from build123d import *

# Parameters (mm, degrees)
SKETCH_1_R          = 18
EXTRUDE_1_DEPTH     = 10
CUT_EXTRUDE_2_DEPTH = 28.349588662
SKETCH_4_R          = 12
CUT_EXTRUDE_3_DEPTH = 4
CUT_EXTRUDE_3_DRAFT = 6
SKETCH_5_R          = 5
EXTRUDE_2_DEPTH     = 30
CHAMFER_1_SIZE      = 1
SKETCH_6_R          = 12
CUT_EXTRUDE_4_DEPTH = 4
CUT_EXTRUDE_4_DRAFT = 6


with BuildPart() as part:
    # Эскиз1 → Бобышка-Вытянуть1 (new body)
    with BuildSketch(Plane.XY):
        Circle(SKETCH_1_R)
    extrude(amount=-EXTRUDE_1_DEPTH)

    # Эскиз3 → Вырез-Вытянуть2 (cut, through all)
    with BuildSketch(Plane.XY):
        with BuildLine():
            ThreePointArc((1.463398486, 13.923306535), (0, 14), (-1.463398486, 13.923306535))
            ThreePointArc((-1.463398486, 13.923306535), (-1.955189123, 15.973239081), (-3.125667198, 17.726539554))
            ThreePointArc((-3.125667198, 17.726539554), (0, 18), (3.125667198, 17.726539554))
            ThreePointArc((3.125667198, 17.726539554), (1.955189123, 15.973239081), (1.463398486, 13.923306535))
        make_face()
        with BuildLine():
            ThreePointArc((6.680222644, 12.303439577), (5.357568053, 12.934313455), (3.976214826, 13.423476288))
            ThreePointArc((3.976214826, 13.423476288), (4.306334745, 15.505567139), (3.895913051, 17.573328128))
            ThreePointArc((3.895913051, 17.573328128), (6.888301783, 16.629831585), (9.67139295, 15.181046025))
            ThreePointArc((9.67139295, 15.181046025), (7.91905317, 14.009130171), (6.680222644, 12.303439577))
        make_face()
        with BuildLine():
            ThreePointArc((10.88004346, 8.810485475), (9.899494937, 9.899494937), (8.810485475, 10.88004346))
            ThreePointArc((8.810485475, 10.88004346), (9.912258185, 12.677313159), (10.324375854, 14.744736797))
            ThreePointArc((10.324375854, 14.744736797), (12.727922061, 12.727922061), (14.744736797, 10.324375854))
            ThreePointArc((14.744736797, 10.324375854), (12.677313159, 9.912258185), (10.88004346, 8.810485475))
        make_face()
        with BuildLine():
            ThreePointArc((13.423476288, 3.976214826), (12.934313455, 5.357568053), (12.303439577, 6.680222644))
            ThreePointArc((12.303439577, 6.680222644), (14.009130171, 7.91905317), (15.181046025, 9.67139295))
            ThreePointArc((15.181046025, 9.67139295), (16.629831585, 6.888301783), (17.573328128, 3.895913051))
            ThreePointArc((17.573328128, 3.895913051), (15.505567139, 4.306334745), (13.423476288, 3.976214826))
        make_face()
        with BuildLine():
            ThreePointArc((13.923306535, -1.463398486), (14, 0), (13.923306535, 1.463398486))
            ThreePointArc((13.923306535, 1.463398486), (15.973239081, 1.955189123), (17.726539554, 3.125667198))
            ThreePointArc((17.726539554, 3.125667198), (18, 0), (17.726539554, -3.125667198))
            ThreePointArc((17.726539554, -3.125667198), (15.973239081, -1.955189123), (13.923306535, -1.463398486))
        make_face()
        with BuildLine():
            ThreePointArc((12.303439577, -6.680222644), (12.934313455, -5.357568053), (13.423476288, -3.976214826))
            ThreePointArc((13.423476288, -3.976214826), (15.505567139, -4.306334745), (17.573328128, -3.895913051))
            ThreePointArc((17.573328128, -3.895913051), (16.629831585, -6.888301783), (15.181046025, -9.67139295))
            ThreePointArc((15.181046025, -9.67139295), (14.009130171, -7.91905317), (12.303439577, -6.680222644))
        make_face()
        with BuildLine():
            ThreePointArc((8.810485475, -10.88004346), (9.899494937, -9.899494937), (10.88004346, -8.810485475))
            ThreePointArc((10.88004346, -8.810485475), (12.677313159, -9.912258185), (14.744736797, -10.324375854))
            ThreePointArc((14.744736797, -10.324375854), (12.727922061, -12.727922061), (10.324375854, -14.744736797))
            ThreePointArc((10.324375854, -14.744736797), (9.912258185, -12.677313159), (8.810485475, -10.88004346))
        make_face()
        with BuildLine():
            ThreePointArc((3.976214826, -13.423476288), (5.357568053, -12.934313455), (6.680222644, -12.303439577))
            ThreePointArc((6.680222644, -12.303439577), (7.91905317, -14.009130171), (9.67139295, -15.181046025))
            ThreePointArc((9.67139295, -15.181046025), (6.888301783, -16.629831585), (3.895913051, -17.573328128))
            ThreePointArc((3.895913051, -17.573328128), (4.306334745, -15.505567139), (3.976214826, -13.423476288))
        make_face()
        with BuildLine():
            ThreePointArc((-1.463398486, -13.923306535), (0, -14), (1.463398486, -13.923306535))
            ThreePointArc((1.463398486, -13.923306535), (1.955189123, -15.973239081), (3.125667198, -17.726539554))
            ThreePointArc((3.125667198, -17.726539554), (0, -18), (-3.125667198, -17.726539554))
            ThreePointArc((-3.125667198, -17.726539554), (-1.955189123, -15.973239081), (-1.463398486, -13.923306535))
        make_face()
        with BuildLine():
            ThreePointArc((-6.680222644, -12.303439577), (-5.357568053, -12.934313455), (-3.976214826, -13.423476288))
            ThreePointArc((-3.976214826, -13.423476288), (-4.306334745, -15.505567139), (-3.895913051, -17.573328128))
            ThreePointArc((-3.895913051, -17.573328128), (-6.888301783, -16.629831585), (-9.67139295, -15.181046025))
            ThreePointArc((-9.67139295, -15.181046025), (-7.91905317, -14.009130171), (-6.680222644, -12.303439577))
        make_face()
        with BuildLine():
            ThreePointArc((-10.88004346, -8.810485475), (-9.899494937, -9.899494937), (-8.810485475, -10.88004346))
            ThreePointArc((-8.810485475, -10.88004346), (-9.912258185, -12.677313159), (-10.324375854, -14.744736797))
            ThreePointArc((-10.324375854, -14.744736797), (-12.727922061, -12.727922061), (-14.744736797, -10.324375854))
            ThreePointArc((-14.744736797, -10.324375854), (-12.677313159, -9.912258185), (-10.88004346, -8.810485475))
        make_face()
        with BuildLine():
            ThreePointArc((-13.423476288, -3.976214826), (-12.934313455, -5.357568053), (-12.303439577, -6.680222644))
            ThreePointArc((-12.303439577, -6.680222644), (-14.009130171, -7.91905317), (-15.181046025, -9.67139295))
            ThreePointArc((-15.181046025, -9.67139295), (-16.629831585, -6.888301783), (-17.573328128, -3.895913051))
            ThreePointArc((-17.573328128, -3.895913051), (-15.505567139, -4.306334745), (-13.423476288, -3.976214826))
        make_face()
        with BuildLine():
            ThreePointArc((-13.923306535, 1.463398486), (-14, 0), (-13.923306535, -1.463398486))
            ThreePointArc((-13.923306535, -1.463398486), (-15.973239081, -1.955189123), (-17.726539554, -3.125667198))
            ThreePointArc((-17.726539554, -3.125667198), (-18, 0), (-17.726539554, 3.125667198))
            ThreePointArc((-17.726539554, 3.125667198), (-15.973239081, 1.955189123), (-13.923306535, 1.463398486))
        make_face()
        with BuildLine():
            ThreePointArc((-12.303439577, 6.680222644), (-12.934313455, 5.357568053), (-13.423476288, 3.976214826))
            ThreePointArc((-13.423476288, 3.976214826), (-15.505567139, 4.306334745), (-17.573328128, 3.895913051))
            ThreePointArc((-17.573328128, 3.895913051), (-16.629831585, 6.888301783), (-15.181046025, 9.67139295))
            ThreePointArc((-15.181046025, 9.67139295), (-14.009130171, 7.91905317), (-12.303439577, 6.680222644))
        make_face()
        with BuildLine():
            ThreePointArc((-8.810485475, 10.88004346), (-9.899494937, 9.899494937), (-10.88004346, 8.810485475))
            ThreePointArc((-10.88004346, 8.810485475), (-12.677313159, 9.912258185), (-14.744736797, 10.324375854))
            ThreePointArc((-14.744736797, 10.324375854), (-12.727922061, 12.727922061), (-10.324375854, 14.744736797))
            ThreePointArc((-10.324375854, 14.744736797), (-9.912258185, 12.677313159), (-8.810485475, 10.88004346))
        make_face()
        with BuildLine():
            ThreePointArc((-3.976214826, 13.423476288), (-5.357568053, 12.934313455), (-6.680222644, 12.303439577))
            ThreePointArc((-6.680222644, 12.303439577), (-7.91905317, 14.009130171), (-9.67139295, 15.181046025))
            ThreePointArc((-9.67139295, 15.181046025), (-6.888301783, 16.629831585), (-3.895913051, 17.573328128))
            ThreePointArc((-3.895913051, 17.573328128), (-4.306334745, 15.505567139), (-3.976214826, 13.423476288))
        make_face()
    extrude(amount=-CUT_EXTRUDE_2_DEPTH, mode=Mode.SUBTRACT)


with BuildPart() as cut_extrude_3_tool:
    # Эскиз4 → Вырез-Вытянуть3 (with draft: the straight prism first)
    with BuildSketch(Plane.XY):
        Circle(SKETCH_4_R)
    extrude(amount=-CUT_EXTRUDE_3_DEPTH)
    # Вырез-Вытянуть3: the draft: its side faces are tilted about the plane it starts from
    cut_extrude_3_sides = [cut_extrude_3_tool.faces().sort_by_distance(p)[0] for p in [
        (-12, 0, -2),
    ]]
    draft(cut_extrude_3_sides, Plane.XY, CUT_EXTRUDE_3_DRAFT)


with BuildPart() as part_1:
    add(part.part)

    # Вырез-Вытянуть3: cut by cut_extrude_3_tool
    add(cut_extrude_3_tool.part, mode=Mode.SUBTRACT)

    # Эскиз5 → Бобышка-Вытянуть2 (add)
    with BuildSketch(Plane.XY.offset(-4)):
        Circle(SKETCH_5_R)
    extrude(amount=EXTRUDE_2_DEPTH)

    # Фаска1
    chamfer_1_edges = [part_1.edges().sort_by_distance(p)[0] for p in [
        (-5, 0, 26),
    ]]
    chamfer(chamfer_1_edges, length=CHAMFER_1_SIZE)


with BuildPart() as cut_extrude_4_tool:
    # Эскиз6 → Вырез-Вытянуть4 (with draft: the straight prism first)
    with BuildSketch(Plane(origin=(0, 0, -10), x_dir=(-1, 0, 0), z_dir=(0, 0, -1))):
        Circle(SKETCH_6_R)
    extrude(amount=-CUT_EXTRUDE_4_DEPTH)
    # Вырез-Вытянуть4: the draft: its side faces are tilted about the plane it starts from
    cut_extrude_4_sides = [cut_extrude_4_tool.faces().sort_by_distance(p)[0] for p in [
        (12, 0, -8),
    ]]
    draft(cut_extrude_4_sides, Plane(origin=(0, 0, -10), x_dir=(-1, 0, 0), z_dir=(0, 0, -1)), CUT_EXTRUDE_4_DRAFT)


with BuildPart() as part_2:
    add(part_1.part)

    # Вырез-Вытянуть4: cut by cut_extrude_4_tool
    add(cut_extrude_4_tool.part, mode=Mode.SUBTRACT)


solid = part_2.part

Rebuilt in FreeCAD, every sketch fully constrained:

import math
import FreeCAD as App
import Part
import Sketcher

V = App.Vector
Q = App.Units.Quantity


def edges_at(feature, points):
    """Names of the edges that pass closest to the given points."""
    edges = feature.Shape.Edges
    near = lambda p: min(range(len(edges)), key=lambda i: edges[i].distToShape(Part.Vertex(*p))[0])
    return sorted({f"Edge{near(p) + 1}" for p in points})


def faces_at(feature, points):
    """Names of the faces that lie closest to the given points."""
    faces = feature.Shape.Faces
    near = lambda p: min(range(len(faces)), key=lambda i: faces[i].distToShape(Part.Vertex(*p))[0])
    return sorted({f"Face{near(p) + 1}" for p in points})

doc = App.newDocument("Part")
body = doc.addObject("PartDesign::Body", "Body")

sketch1 = body.newObject("Sketcher::SketchObject", "Sketch")
sketch1.AttachmentSupport = (doc.getObject("XY_Plane"), [""])
sketch1.MapMode = "FlatFace"
sketch1.addGeometry(Part.Circle(V(0, 0, 0), V(0, 0, 1), 18), False)
sketch1.addConstraint([
    Sketcher.Constraint("Coincident", 0, 3, -1, 1),
    Sketcher.Constraint("Diameter", 0, Q("36 mm")),
])
pad1 = body.newObject("PartDesign::Pad", "Pad")
pad1.Profile = sketch1
pad1.Length = 10
pad1.Reversed = True

sketch2 = body.newObject("Sketcher::SketchObject", "Sketch001")
sketch2.AttachmentSupport = (doc.getObject("XY_Plane"), [""])
sketch2.MapMode = "FlatFace"
sketch2.addGeometry([
    Part.ArcOfCircle(Part.Circle(V(0, 0, 0), V(0, 0, 1), 14), math.radians(84), math.radians(96)),
    Part.ArcOfCircle(Part.Circle(V(7.5, 13.6, 0), V(0, 0, 1), 6), math.radians(136), math.radians(177)),
    Part.ArcOfCircle(Part.Circle(V(0, 0, 0), V(0, 0, 1), 18), math.radians(80), math.radians(100)),
    Part.ArcOfCircle(Part.Circle(V(-7.5, 13.6, 0), V(0, 0, 1), 6), math.radians(3), math.radians(44)),
    Part.ArcOfCircle(Part.Circle(V(0, 0, 0), V(0, 0, 1), 14), math.radians(61.5), math.radians(73.5)),
    Part.ArcOfCircle(Part.Circle(V(12.1, 9.7, 0), V(0, 0, 1), 6), math.radians(114), math.radians(154)),
    Part.ArcOfCircle(Part.Circle(V(0, 0, 0), V(0, 0, 1), 18), math.radians(57.5), math.radians(77.5)),
    Part.ArcOfCircle(Part.Circle(V(-1.7, 15.4, 0), V(0, 0, 1), 6), math.radians(-19), math.radians(21)),
    Part.ArcOfCircle(Part.Circle(V(0, 0, 0), V(0, 0, 1), 14), math.radians(39), math.radians(51)),
    Part.ArcOfCircle(Part.Circle(V(14.9, 4.3, 0), V(0, 0, 1), 6), math.radians(91), math.radians(132)),
    Part.ArcOfCircle(Part.Circle(V(0, 0, 0), V(0, 0, 1), 18), math.radians(35), math.radians(55)),
    Part.ArcOfCircle(Part.Circle(V(4.3, 14.9, 0), V(0, 0, 1), 6), math.radians(-42), math.radians(-1)),
    Part.ArcOfCircle(Part.Circle(V(0, 0, 0), V(0, 0, 1), 14), math.radians(16.5), math.radians(28.5)),
    Part.ArcOfCircle(Part.Circle(V(15.4, -1.7, 0), V(0, 0, 1), 6), math.radians(69), math.radians(109)),
    Part.ArcOfCircle(Part.Circle(V(0, 0, 0), V(0, 0, 1), 18), math.radians(12.5), math.radians(32.5)),
    Part.ArcOfCircle(Part.Circle(V(9.7, 12.1, 0), V(0, 0, 1), 6), math.radians(-64), math.radians(-24)),
    Part.ArcOfCircle(Part.Circle(V(0, 0, 0), V(0, 0, 1), 14), math.radians(-6), math.radians(6)),
    Part.ArcOfCircle(Part.Circle(V(13.6, -7.5, 0), V(0, 0, 1), 6), math.radians(46), math.radians(87)),
    Part.ArcOfCircle(Part.Circle(V(0, 0, 0), V(0, 0, 1), 18), math.radians(-10), math.radians(10)),
    Part.ArcOfCircle(Part.Circle(V(13.6, 7.5, 0), V(0, 0, 1), 6), math.radians(-87), math.radians(-46)),
    Part.ArcOfCircle(Part.Circle(V(0, 0, 0), V(0, 0, 1), 14), math.radians(-28.5), math.radians(-16.5)),
    Part.ArcOfCircle(Part.Circle(V(9.7, -12.1, 0), V(0, 0, 1), 6), math.radians(24), math.radians(64)),
    Part.ArcOfCircle(Part.Circle(V(0, 0, 0), V(0, 0, 1), 18), math.radians(-32.5), math.radians(-12.5)),
    Part.ArcOfCircle(Part.Circle(V(15.4, 1.7, 0), V(0, 0, 1), 6), math.radians(-109), math.radians(-69)),
    Part.ArcOfCircle(Part.Circle(V(0, 0, 0), V(0, 0, 1), 14), math.radians(-51), math.radians(-39)),
    Part.ArcOfCircle(Part.Circle(V(4.3, -14.9, 0), V(0, 0, 1), 6), math.radians(1), math.radians(42)),
    Part.ArcOfCircle(Part.Circle(V(0, 0, 0), V(0, 0, 1), 18), math.radians(-55), math.radians(-35)),
    Part.ArcOfCircle(Part.Circle(V(14.9, -4.3, 0), V(0, 0, 1), 6), math.radians(-132), math.radians(-91)),
    Part.ArcOfCircle(Part.Circle(V(0, 0, 0), V(0, 0, 1), 14), math.radians(-73.5), math.radians(-61.5)),
    Part.ArcOfCircle(Part.Circle(V(-1.7, -15.4, 0), V(0, 0, 1), 6), math.radians(-21), math.radians(19)),
    Part.ArcOfCircle(Part.Circle(V(0, 0, 0), V(0, 0, 1), 18), math.radians(-77.5), math.radians(-57.5)),
    Part.ArcOfCircle(Part.Circle(V(12.1, -9.7, 0), V(0, 0, 1), 6), math.radians(-154), math.radians(-114)),
    Part.ArcOfCircle(Part.Circle(V(0, 0, 0), V(0, 0, 1), 14), math.radians(-96), math.radians(-84)),
    Part.ArcOfCircle(Part.Circle(V(-7.5, -13.6, 0), V(0, 0, 1), 6), math.radians(-44), math.radians(-3)),
    Part.ArcOfCircle(Part.Circle(V(0, 0, 0), V(0, 0, 1), 18), math.radians(-100), math.radians(-80)),
    Part.ArcOfCircle(Part.Circle(V(7.5, -13.6, 0), V(0, 0, 1), 6), math.radians(-177), math.radians(-136)),
    Part.ArcOfCircle(Part.Circle(V(0, 0, 0), V(0, 0, 1), 14), math.radians(-118.5), math.radians(-106.5)),
    Part.ArcOfCircle(Part.Circle(V(-12.1, -9.7, 0), V(0, 0, 1), 6), math.radians(-66), math.radians(-26)),
    Part.ArcOfCircle(Part.Circle(V(0, 0, 0), V(0, 0, 1), 18), math.radians(-122.5), math.radians(-102.5)),
    Part.ArcOfCircle(Part.Circle(V(1.7, -15.4, 0), V(0, 0, 1), 6), math.radians(161), math.radians(201)),
    Part.ArcOfCircle(Part.Circle(V(0, 0, 0), V(0, 0, 1), 14), math.radians(-141), math.radians(-129)),
    Part.ArcOfCircle(Part.Circle(V(-14.9, -4.3, 0), V(0, 0, 1), 6), math.radians(-89), math.radians(-48)),
    Part.ArcOfCircle(Part.Circle(V(0, 0, 0), V(0, 0, 1), 18), math.radians(-145), math.radians(-125)),
    Part.ArcOfCircle(Part.Circle(V(-4.3, -14.9, 0), V(0, 0, 1), 6), math.radians(138), math.radians(179)),
    Part.ArcOfCircle(Part.Circle(V(0, 0, 0), V(0, 0, 1), 14), math.radians(-163.5), math.radians(-151.5)),
    Part.ArcOfCircle(Part.Circle(V(-15.4, 1.7, 0), V(0, 0, 1), 6), math.radians(-111), math.radians(-71)),
    Part.ArcOfCircle(Part.Circle(V(0, 0, 0), V(0, 0, 1), 18), math.radians(-167.5), math.radians(-147.5)),
    Part.ArcOfCircle(Part.Circle(V(-9.7, -12.1, 0), V(0, 0, 1), 6), math.radians(116), math.radians(156)),
    Part.ArcOfCircle(Part.Circle(V(0, 0, 0), V(0, 0, 1), 14), math.radians(174), math.radians(186)),
    Part.ArcOfCircle(Part.Circle(V(-13.6, 7.5, 0), V(0, 0, 1), 6), math.radians(-134), math.radians(-93)),
    Part.ArcOfCircle(Part.Circle(V(0, 0, 0), V(0, 0, 1), 18), math.radians(170), math.radians(190)),
    Part.ArcOfCircle(Part.Circle(V(-13.6, -7.5, 0), V(0, 0, 1), 6), math.radians(93), math.radians(134)),
    Part.ArcOfCircle(Part.Circle(V(0, 0, 0), V(0, 0, 1), 14), math.radians(151.5), math.radians(163.5)),
    Part.ArcOfCircle(Part.Circle(V(-9.7, 12.1, 0), V(0, 0, 1), 6), math.radians(-156), math.radians(-116)),
    Part.ArcOfCircle(Part.Circle(V(0, 0, 0), V(0, 0, 1), 18), math.radians(147.5), math.radians(167.5)),
    Part.ArcOfCircle(Part.Circle(V(-15.4, -1.7, 0), V(0, 0, 1), 6), math.radians(71), math.radians(111)),
    Part.ArcOfCircle(Part.Circle(V(0, 0, 0), V(0, 0, 1), 14), math.radians(129), math.radians(141)),
    Part.ArcOfCircle(Part.Circle(V(-4.3, 14.9, 0), V(0, 0, 1), 6), math.radians(-179), math.radians(-138)),
    Part.ArcOfCircle(Part.Circle(V(0, 0, 0), V(0, 0, 1), 18), math.radians(125), math.radians(145)),
    Part.ArcOfCircle(Part.Circle(V(-14.9, 4.3, 0), V(0, 0, 1), 6), math.radians(48), math.radians(89)),
    Part.ArcOfCircle(Part.Circle(V(0, 0, 0), V(0, 0, 1), 14), math.radians(106.5), math.radians(118.5)),
    Part.ArcOfCircle(Part.Circle(V(1.7, 15.4, 0), V(0, 0, 1), 6), math.radians(159), math.radians(199)),
    Part.ArcOfCircle(Part.Circle(V(0, 0, 0), V(0, 0, 1), 18), math.radians(102.5), math.radians(122.5)),
    Part.ArcOfCircle(Part.Circle(V(-12.1, 9.7, 0), V(0, 0, 1), 6), math.radians(26), math.radians(66)),
], False)
sketch2.addConstraint([
    Sketcher.Constraint("Coincident", 0, 1, 1, 2),
    Sketcher.Constraint("Coincident", 1, 1, 2, 1),
    Sketcher.Constraint("Coincident", 2, 2, 3, 2),
    Sketcher.Constraint("Coincident", 3, 1, 0, 2),
    Sketcher.Constraint("Coincident", 4, 1, 5, 2),
    Sketcher.Constraint("Coincident", 5, 1, 6, 1),
    Sketcher.Constraint("Coincident", 6, 2, 7, 2),
    Sketcher.Constraint("Coincident", 7, 1, 4, 2),
    Sketcher.Constraint("Coincident", 8, 1, 9, 2),
    Sketcher.Constraint("Coincident", 9, 1, 10, 1),
    Sketcher.Constraint("Coincident", 10, 2, 11, 2),
    Sketcher.Constraint("Coincident", 11, 1, 8, 2),
    Sketcher.Constraint("Coincident", 12, 1, 13, 2),
    Sketcher.Constraint("Coincident", 13, 1, 14, 1),
    Sketcher.Constraint("Coincident", 14, 2, 15, 2),
    Sketcher.Constraint("Coincident", 15, 1, 12, 2),
    Sketcher.Constraint("Coincident", 16, 1, 17, 2),
    Sketcher.Constraint("Coincident", 17, 1, 18, 1),
    Sketcher.Constraint("Coincident", 18, 2, 19, 2),
    Sketcher.Constraint("Coincident", 19, 1, 16, 2),
    Sketcher.Constraint("Coincident", 20, 1, 21, 2),
    Sketcher.Constraint("Coincident", 21, 1, 22, 1),
    Sketcher.Constraint("Coincident", 22, 2, 23, 2),
    Sketcher.Constraint("Coincident", 23, 1, 20, 2),
    Sketcher.Constraint("Coincident", 24, 1, 25, 2),
    Sketcher.Constraint("Coincident", 25, 1, 26, 1),
    Sketcher.Constraint("Coincident", 26, 2, 27, 2),
    Sketcher.Constraint("Coincident", 27, 1, 24, 2),
    Sketcher.Constraint("Coincident", 28, 1, 29, 2),
    Sketcher.Constraint("Coincident", 29, 1, 30, 1),
    Sketcher.Constraint("Coincident", 30, 2, 31, 2),
    Sketcher.Constraint("Coincident", 31, 1, 28, 2),
    Sketcher.Constraint("Coincident", 32, 1, 33, 2),
    Sketcher.Constraint("Coincident", 33, 1, 34, 1),
    Sketcher.Constraint("Coincident", 34, 2, 35, 2),
    Sketcher.Constraint("Coincident", 35, 1, 32, 2),
    Sketcher.Constraint("Coincident", 36, 1, 37, 2),
    Sketcher.Constraint("Coincident", 37, 1, 38, 1),
    Sketcher.Constraint("Coincident", 38, 2, 39, 2),
    Sketcher.Constraint("Coincident", 39, 1, 36, 2),
    Sketcher.Constraint("Coincident", 40, 1, 41, 2),
    Sketcher.Constraint("Coincident", 41, 1, 42, 1),
    Sketcher.Constraint("Coincident", 42, 2, 43, 2),
    Sketcher.Constraint("Coincident", 43, 1, 40, 2),
    Sketcher.Constraint("Coincident", 44, 1, 45, 2),
    Sketcher.Constraint("Coincident", 45, 1, 46, 1),
    Sketcher.Constraint("Coincident", 46, 2, 47, 2),
    Sketcher.Constraint("Coincident", 47, 1, 44, 2),
    Sketcher.Constraint("Coincident", 48, 1, 49, 2),
    Sketcher.Constraint("Coincident", 49, 1, 50, 1),
    Sketcher.Constraint("Coincident", 50, 2, 51, 2),
    Sketcher.Constraint("Coincident", 51, 1, 48, 2),
    Sketcher.Constraint("Coincident", 52, 1, 53, 2),
    Sketcher.Constraint("Coincident", 53, 1, 54, 1),
    Sketcher.Constraint("Coincident", 54, 2, 55, 2),
    Sketcher.Constraint("Coincident", 55, 1, 52, 2),
    Sketcher.Constraint("Coincident", 56, 1, 57, 2),
    Sketcher.Constraint("Coincident", 57, 1, 58, 1),
    Sketcher.Constraint("Coincident", 58, 2, 59, 2),
    Sketcher.Constraint("Coincident", 59, 1, 56, 2),
    Sketcher.Constraint("Coincident", 60, 1, 61, 2),
    Sketcher.Constraint("Coincident", 61, 1, 62, 1),
    Sketcher.Constraint("Coincident", 62, 2, 63, 2),
    Sketcher.Constraint("Coincident", 63, 1, 60, 2),
    Sketcher.Constraint("Coincident", 0, 3, -1, 1),
    Sketcher.Constraint("Coincident", 2, 3, -1, 1),
    Sketcher.Constraint("Coincident", 4, 3, -1, 1),
    Sketcher.Constraint("Coincident", 6, 3, -1, 1),
    Sketcher.Constraint("Coincident", 8, 3, -1, 1),
    Sketcher.Constraint("Coincident", 10, 3, -1, 1),
    Sketcher.Constraint("Coincident", 12, 3, -1, 1),
    Sketcher.Constraint("Coincident", 14, 3, -1, 1),
    Sketcher.Constraint("Coincident", 16, 3, -1, 1),
    Sketcher.Constraint("Coincident", 18, 3, -1, 1),
    Sketcher.Constraint("Coincident", 20, 3, -1, 1),
    Sketcher.Constraint("Coincident", 22, 3, -1, 1),
    Sketcher.Constraint("Coincident", 24, 3, -1, 1),
    Sketcher.Constraint("Coincident", 26, 3, -1, 1),
    Sketcher.Constraint("Coincident", 28, 3, -1, 1),
    Sketcher.Constraint("Coincident", 30, 3, -1, 1),
    Sketcher.Constraint("Coincident", 32, 3, -1, 1),
    Sketcher.Constraint("Coincident", 34, 3, -1, 1),
    Sketcher.Constraint("Coincident", 36, 3, -1, 1),
    Sketcher.Constraint("Coincident", 38, 3, -1, 1),
    Sketcher.Constraint("Coincident", 40, 3, -1, 1),
    Sketcher.Constraint("Coincident", 42, 3, -1, 1),
    Sketcher.Constraint("Coincident", 44, 3, -1, 1),
    Sketcher.Constraint("Coincident", 46, 3, -1, 1),
    Sketcher.Constraint("Coincident", 48, 3, -1, 1),
    Sketcher.Constraint("Coincident", 50, 3, -1, 1),
    Sketcher.Constraint("Coincident", 52, 3, -1, 1),
    Sketcher.Constraint("Coincident", 54, 3, -1, 1),
    Sketcher.Constraint("Coincident", 56, 3, -1, 1),
    Sketcher.Constraint("Coincident", 58, 3, -1, 1),
    Sketcher.Constraint("Coincident", 60, 3, -1, 1),
    Sketcher.Constraint("Coincident", 62, 3, -1, 1),
    Sketcher.Constraint("Equal", 1, 3),
    Sketcher.Constraint("Equal", 0, 4),
    Sketcher.Constraint("Equal", 3, 5),
    Sketcher.Constraint("Equal", 2, 6),
    Sketcher.Constraint("Equal", 5, 7),
    Sketcher.Constraint("Equal", 4, 8),
    Sketcher.Constraint("Equal", 7, 9),
    Sketcher.Constraint("Equal", 6, 10),
    Sketcher.Constraint("Equal", 9, 11),
    Sketcher.Constraint("Equal", 8, 12),
    Sketcher.Constraint("Equal", 11, 13),
    Sketcher.Constraint("Equal", 10, 14),
    Sketcher.Constraint("Equal", 13, 15),
    Sketcher.Constraint("Equal", 12, 16),
    Sketcher.Constraint("Equal", 15, 17),
    Sketcher.Constraint("Equal", 14, 18),
    Sketcher.Constraint("Equal", 17, 19),
    Sketcher.Constraint("Equal", 16, 20),
    Sketcher.Constraint("Equal", 19, 21),
    Sketcher.Constraint("Equal", 18, 22),
    Sketcher.Constraint("Equal", 21, 23),
    Sketcher.Constraint("Equal", 20, 24),
    Sketcher.Constraint("Equal", 23, 25),
    Sketcher.Constraint("Equal", 22, 26),
    Sketcher.Constraint("Equal", 25, 27),
    Sketcher.Constraint("Equal", 24, 28),
    Sketcher.Constraint("Equal", 27, 29),
    Sketcher.Constraint("Equal", 26, 30),
    Sketcher.Constraint("Equal", 29, 31),
    Sketcher.Constraint("Equal", 28, 32),
    Sketcher.Constraint("Equal", 31, 33),
    Sketcher.Constraint("Equal", 30, 34),
    Sketcher.Constraint("Equal", 33, 35),
    Sketcher.Constraint("Equal", 32, 36),
    Sketcher.Constraint("Equal", 35, 37),
    Sketcher.Constraint("Equal", 34, 38),
    Sketcher.Constraint("Equal", 37, 39),
    Sketcher.Constraint("Equal", 36, 40),
    Sketcher.Constraint("Equal", 39, 41),
    Sketcher.Constraint("Equal", 38, 42),
    Sketcher.Constraint("Equal", 41, 43),
    Sketcher.Constraint("Equal", 40, 44),
    Sketcher.Constraint("Equal", 43, 45),
    Sketcher.Constraint("Equal", 42, 46),
    Sketcher.Constraint("Equal", 45, 47),
    Sketcher.Constraint("Equal", 44, 48),
    Sketcher.Constraint("Equal", 47, 49),
    Sketcher.Constraint("Equal", 46, 50),
    Sketcher.Constraint("Equal", 49, 51),
    Sketcher.Constraint("Equal", 48, 52),
    Sketcher.Constraint("Equal", 51, 53),
    Sketcher.Constraint("Equal", 50, 54),
    Sketcher.Constraint("Equal", 53, 55),
    Sketcher.Constraint("Equal", 52, 56),
    Sketcher.Constraint("Equal", 55, 57),
    Sketcher.Constraint("Equal", 54, 58),
    Sketcher.Constraint("Equal", 57, 59),
    Sketcher.Constraint("Equal", 56, 60),
    Sketcher.Constraint("Equal", 59, 61),
    Sketcher.Constraint("Equal", 58, 62),
    Sketcher.Constraint("Equal", 61, 63),
    Sketcher.Constraint("Symmetric", 1, 3, 33, 3, -1, 1),
    Sketcher.Constraint("Symmetric", 3, 3, 35, 3, -1, 1),
    Sketcher.Constraint("Symmetric", 5, 3, 37, 3, -1, 1),
    Sketcher.Constraint("Symmetric", 7, 3, 39, 3, -1, 1),
    Sketcher.Constraint("Symmetric", 9, 3, 41, 3, -1, 1),
    Sketcher.Constraint("Symmetric", 11, 3, 43, 3, -1, 1),
    Sketcher.Constraint("Symmetric", 13, 3, 45, 3, -1, 1),
    Sketcher.Constraint("Symmetric", 15, 3, 47, 3, -1, 1),
    Sketcher.Constraint("Symmetric", 17, 3, 49, 3, -1, 1),
    Sketcher.Constraint("Symmetric", 19, 3, 51, 3, -1, 1),
    Sketcher.Constraint("Symmetric", 21, 3, 53, 3, -1, 1),
    Sketcher.Constraint("Symmetric", 23, 3, 55, 3, -1, 1),
    Sketcher.Constraint("Symmetric", 25, 3, 57, 3, -1, 1),
    Sketcher.Constraint("Symmetric", 27, 3, 59, 3, -1, 1),
    Sketcher.Constraint("Symmetric", 29, 3, 61, 3, -1, 1),
    Sketcher.Constraint("Symmetric", 31, 3, 63, 3, -1, 1),
    Sketcher.Constraint("Symmetric", 1, 3, 3, 3, -2),
    Sketcher.Constraint("Symmetric", 31, 3, 37, 3, -2),
    Sketcher.Constraint("Symmetric", 29, 3, 39, 3, -2),
    Sketcher.Constraint("Symmetric", 27, 3, 41, 3, -2),
    Sketcher.Constraint("Symmetric", 25, 3, 43, 3, -2),
    Sketcher.Constraint("Symmetric", 23, 3, 45, 3, -2),
    Sketcher.Constraint("Symmetric", 21, 3, 47, 3, -2),
    Sketcher.Constraint("Symmetric", 19, 3, 49, 3, -2),
    Sketcher.Constraint("Radius", 0, Q("14 mm")),
    Sketcher.Constraint("Radius", 1, Q("6 mm")),
    Sketcher.Constraint("Radius", 2, Q("18 mm")),
    Sketcher.Constraint("DistanceY", -1, 1, 5, 3, Q("9.685202 mm")),
    Sketcher.Constraint("DistanceX", -1, 1, 15, 3, Q("9.685202 mm")),
    Sketcher.Constraint("DistanceX", -1, 1, 0, 1, Q("1.463398 mm")),
    Sketcher.Constraint("DistanceY", 16, 1, -1, 1, Q("1.463398 mm")),
    Sketcher.Constraint("DistanceX", -1, 1, 9, 3, Q("14.865739 mm")),
    Sketcher.Constraint("DistanceY", -1, 1, 11, 3, Q("14.865739 mm")),
    Sketcher.Constraint("DistanceY", -1, 1, 1, 1, Q("17.72654 mm")),
    Sketcher.Constraint("DistanceY", -1, 1, 4, 1, Q("12.30344 mm")),
    Sketcher.Constraint("DistanceY", -1, 1, 6, 2, Q("17.573328 mm")),
    Sketcher.Constraint("DistanceX", -1, 1, 13, 1, Q("17.573328 mm")),
    Sketcher.Constraint("DistanceX", -1, 1, 15, 1, Q("12.30344 mm")),
    Sketcher.Constraint("DistanceX", -1, 1, 17, 1, Q("17.72654 mm")),
    Sketcher.Constraint("DistanceX", 7, 3, -1, 1, Q("1.692542 mm")),
    Sketcher.Constraint("DistanceY", -1, 1, 9, 3, Q("4.325596 mm")),
    Sketcher.Constraint("DistanceX", -1, 1, 11, 3, Q("4.325596 mm")),
    Sketcher.Constraint("DistanceX", -1, 1, 13, 3, Q("15.389486 mm")),
])
pocket1 = body.newObject("PartDesign::Pocket", "Pocket")
pocket1.Profile = sketch2
pocket1.Type = "ThroughAll"
body2 = doc.addObject("PartDesign::Body", "Body001")

sketch3 = body2.newObject("Sketcher::SketchObject", "Sketch002")
sketch3.AttachmentSupport = (doc.getObject("XY_Plane001"), [""])
sketch3.MapMode = "FlatFace"
sketch3.addGeometry(Part.Circle(V(0, 0, 0), V(0, 0, 1), 12), False)
sketch3.addConstraint([
    Sketcher.Constraint("Coincident", 0, 3, -1, 1),
    Sketcher.Constraint("Diameter", 0, Q("24 mm")),
])
pad2 = body2.newObject("PartDesign::Pad", "Pad001")
pad2.Profile = sketch3
pad2.Length = 4
pad2.Reversed = True
doc.recompute()

draft = body2.newObject("PartDesign::Draft", "Draft")
draft.Base = (pad2, faces_at(pad2, [(-12, 0, -2)]))
draft.NeutralPlane = (doc.getObject("XY_Plane001"), [""])
draft.Angle = 6
draft.Reversed = False
doc.recompute()

boolean = body.newObject("PartDesign::Boolean", "Boolean")
boolean.Type = "Cut"
boolean.addObjects([body2])

sketch4 = body.newObject("Sketcher::SketchObject", "Sketch003")
sketch4.AttachmentSupport = (doc.getObject("XY_Plane"), [""])
sketch4.MapMode = "FlatFace"
sketch4.AttachmentOffset = App.Placement(V(0, 0, -4), App.Rotation())
sketch4.addGeometry(Part.Circle(V(0, 0, 0), V(0, 0, 1), 5), False)
sketch4.addConstraint([
    Sketcher.Constraint("Coincident", 0, 3, -1, 1),
    Sketcher.Constraint("Diameter", 0, Q("10 mm")),
])
pad3 = body.newObject("PartDesign::Pad", "Pad002")
pad3.Profile = sketch4
pad3.Length = 30
doc.recompute()

chamfer = body.newObject("PartDesign::Chamfer", "Chamfer")
chamfer.Base = (pad3, edges_at(pad3, [(-5, 0, 26)]))
chamfer.Size = 1
body3 = doc.addObject("PartDesign::Body", "Body002")

sketch5 = body3.newObject("Sketcher::SketchObject", "Sketch004")
sketch5.AttachmentSupport = (doc.getObject("XY_Plane002"), [""])
sketch5.MapMode = "FlatFace"
sketch5.AttachmentOffset = App.Placement(V(0, 0, -10), App.Rotation())
sketch5.addGeometry(Part.Circle(V(0, 0, 0), V(0, 0, 1), 12), False)
sketch5.addConstraint([
    Sketcher.Constraint("Coincident", 0, 3, -1, 1),
    Sketcher.Constraint("Diameter", 0, Q("24 mm")),
])
pad4 = body3.newObject("PartDesign::Pad", "Pad003")
pad4.Profile = sketch5
pad4.Length = 4
doc.recompute()

datumplane = body3.newObject("PartDesign::Plane", "DatumPlane")
datumplane.AttachmentSupport = (doc.getObject("XY_Plane002"), [""])
datumplane.MapMode = "FlatFace"
datumplane.AttachmentOffset = App.Placement(V(0, 0, -10), App.Rotation())
draft2 = body3.newObject("PartDesign::Draft", "Draft001")
draft2.Base = (pad4, faces_at(pad4, [(12, 0, -8)]))
draft2.NeutralPlane = (datumplane, [""])
draft2.Angle = 6
draft2.Reversed = True
doc.recompute()

boolean2 = body.newObject("PartDesign::Boolean", "Boolean001")
boolean2.Type = "Cut"
boolean2.addObjects([body3])

doc.recompute()
